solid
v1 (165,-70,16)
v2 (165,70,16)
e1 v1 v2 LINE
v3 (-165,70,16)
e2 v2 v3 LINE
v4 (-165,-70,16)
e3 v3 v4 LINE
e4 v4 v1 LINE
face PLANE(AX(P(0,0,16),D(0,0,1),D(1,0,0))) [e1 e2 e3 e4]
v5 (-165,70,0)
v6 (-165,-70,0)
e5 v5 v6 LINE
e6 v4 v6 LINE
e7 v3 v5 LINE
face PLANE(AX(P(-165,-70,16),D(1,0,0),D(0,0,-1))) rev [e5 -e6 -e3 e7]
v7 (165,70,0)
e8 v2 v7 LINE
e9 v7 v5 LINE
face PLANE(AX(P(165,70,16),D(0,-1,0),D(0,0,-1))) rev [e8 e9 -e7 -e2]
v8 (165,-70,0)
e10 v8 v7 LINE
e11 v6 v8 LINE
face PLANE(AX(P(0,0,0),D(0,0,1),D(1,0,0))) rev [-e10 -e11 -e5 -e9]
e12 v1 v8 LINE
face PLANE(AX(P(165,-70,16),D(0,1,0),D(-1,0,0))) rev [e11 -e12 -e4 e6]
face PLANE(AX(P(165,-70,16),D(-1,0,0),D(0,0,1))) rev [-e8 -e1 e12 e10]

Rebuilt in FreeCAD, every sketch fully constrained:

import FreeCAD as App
import Part
import Sketcher
from FreeCAD import Vector


def add_polygon(sketch, points):
    """Adds a closed chain of lines whose ends are joined by coincident constraints."""
    first, n = sketch.GeometryCount, len(points)
    for a, b in zip(points, points[1:] + points[:1]):
        sketch.addGeometry(Part.LineSegment(App.Vector(*a, 0), App.Vector(*b, 0)), False)
    for i in range(n):
        sketch.addConstraint(Sketcher.Constraint("Coincident", first + i, 2, first + (i + 1) % n, 1))

doc = App.newDocument("Part")
body = doc.addObject("PartDesign::Body", "Body")

# Sketch on XY plane
sketch1 = body.newObject("Sketcher::SketchObject", "Sketch")
sketch1.AttachmentSupport = (doc.getObject("XY_Plane"), [""])
sketch1.MapMode = "FlatFace"
add_polygon(sketch1, [(-165, 70), (-165, -70), (165, -70), (165, 70)])  # lines 0-3
sketch1.addConstraint([
    Sketcher.Constraint("Vertical", 0),
    Sketcher.Constraint("Horizontal", 1),
    Sketcher.Constraint("Vertical", 2),
    Sketcher.Constraint("Horizontal", 3),
    Sketcher.Constraint("Symmetric", 0, 2, 2, 2, -1, 1),
    Sketcher.Constraint("DistanceX", 1, 1, 1, 2, 330.0),
    Sketcher.Constraint("DistanceY", 0, 2, 0, 1, 140.0),
])
pad1 = body.newObject("PartDesign::Pad", "Pad")
pad1.Profile = sketch1
pad1.Length = 16

doc.recompute()
